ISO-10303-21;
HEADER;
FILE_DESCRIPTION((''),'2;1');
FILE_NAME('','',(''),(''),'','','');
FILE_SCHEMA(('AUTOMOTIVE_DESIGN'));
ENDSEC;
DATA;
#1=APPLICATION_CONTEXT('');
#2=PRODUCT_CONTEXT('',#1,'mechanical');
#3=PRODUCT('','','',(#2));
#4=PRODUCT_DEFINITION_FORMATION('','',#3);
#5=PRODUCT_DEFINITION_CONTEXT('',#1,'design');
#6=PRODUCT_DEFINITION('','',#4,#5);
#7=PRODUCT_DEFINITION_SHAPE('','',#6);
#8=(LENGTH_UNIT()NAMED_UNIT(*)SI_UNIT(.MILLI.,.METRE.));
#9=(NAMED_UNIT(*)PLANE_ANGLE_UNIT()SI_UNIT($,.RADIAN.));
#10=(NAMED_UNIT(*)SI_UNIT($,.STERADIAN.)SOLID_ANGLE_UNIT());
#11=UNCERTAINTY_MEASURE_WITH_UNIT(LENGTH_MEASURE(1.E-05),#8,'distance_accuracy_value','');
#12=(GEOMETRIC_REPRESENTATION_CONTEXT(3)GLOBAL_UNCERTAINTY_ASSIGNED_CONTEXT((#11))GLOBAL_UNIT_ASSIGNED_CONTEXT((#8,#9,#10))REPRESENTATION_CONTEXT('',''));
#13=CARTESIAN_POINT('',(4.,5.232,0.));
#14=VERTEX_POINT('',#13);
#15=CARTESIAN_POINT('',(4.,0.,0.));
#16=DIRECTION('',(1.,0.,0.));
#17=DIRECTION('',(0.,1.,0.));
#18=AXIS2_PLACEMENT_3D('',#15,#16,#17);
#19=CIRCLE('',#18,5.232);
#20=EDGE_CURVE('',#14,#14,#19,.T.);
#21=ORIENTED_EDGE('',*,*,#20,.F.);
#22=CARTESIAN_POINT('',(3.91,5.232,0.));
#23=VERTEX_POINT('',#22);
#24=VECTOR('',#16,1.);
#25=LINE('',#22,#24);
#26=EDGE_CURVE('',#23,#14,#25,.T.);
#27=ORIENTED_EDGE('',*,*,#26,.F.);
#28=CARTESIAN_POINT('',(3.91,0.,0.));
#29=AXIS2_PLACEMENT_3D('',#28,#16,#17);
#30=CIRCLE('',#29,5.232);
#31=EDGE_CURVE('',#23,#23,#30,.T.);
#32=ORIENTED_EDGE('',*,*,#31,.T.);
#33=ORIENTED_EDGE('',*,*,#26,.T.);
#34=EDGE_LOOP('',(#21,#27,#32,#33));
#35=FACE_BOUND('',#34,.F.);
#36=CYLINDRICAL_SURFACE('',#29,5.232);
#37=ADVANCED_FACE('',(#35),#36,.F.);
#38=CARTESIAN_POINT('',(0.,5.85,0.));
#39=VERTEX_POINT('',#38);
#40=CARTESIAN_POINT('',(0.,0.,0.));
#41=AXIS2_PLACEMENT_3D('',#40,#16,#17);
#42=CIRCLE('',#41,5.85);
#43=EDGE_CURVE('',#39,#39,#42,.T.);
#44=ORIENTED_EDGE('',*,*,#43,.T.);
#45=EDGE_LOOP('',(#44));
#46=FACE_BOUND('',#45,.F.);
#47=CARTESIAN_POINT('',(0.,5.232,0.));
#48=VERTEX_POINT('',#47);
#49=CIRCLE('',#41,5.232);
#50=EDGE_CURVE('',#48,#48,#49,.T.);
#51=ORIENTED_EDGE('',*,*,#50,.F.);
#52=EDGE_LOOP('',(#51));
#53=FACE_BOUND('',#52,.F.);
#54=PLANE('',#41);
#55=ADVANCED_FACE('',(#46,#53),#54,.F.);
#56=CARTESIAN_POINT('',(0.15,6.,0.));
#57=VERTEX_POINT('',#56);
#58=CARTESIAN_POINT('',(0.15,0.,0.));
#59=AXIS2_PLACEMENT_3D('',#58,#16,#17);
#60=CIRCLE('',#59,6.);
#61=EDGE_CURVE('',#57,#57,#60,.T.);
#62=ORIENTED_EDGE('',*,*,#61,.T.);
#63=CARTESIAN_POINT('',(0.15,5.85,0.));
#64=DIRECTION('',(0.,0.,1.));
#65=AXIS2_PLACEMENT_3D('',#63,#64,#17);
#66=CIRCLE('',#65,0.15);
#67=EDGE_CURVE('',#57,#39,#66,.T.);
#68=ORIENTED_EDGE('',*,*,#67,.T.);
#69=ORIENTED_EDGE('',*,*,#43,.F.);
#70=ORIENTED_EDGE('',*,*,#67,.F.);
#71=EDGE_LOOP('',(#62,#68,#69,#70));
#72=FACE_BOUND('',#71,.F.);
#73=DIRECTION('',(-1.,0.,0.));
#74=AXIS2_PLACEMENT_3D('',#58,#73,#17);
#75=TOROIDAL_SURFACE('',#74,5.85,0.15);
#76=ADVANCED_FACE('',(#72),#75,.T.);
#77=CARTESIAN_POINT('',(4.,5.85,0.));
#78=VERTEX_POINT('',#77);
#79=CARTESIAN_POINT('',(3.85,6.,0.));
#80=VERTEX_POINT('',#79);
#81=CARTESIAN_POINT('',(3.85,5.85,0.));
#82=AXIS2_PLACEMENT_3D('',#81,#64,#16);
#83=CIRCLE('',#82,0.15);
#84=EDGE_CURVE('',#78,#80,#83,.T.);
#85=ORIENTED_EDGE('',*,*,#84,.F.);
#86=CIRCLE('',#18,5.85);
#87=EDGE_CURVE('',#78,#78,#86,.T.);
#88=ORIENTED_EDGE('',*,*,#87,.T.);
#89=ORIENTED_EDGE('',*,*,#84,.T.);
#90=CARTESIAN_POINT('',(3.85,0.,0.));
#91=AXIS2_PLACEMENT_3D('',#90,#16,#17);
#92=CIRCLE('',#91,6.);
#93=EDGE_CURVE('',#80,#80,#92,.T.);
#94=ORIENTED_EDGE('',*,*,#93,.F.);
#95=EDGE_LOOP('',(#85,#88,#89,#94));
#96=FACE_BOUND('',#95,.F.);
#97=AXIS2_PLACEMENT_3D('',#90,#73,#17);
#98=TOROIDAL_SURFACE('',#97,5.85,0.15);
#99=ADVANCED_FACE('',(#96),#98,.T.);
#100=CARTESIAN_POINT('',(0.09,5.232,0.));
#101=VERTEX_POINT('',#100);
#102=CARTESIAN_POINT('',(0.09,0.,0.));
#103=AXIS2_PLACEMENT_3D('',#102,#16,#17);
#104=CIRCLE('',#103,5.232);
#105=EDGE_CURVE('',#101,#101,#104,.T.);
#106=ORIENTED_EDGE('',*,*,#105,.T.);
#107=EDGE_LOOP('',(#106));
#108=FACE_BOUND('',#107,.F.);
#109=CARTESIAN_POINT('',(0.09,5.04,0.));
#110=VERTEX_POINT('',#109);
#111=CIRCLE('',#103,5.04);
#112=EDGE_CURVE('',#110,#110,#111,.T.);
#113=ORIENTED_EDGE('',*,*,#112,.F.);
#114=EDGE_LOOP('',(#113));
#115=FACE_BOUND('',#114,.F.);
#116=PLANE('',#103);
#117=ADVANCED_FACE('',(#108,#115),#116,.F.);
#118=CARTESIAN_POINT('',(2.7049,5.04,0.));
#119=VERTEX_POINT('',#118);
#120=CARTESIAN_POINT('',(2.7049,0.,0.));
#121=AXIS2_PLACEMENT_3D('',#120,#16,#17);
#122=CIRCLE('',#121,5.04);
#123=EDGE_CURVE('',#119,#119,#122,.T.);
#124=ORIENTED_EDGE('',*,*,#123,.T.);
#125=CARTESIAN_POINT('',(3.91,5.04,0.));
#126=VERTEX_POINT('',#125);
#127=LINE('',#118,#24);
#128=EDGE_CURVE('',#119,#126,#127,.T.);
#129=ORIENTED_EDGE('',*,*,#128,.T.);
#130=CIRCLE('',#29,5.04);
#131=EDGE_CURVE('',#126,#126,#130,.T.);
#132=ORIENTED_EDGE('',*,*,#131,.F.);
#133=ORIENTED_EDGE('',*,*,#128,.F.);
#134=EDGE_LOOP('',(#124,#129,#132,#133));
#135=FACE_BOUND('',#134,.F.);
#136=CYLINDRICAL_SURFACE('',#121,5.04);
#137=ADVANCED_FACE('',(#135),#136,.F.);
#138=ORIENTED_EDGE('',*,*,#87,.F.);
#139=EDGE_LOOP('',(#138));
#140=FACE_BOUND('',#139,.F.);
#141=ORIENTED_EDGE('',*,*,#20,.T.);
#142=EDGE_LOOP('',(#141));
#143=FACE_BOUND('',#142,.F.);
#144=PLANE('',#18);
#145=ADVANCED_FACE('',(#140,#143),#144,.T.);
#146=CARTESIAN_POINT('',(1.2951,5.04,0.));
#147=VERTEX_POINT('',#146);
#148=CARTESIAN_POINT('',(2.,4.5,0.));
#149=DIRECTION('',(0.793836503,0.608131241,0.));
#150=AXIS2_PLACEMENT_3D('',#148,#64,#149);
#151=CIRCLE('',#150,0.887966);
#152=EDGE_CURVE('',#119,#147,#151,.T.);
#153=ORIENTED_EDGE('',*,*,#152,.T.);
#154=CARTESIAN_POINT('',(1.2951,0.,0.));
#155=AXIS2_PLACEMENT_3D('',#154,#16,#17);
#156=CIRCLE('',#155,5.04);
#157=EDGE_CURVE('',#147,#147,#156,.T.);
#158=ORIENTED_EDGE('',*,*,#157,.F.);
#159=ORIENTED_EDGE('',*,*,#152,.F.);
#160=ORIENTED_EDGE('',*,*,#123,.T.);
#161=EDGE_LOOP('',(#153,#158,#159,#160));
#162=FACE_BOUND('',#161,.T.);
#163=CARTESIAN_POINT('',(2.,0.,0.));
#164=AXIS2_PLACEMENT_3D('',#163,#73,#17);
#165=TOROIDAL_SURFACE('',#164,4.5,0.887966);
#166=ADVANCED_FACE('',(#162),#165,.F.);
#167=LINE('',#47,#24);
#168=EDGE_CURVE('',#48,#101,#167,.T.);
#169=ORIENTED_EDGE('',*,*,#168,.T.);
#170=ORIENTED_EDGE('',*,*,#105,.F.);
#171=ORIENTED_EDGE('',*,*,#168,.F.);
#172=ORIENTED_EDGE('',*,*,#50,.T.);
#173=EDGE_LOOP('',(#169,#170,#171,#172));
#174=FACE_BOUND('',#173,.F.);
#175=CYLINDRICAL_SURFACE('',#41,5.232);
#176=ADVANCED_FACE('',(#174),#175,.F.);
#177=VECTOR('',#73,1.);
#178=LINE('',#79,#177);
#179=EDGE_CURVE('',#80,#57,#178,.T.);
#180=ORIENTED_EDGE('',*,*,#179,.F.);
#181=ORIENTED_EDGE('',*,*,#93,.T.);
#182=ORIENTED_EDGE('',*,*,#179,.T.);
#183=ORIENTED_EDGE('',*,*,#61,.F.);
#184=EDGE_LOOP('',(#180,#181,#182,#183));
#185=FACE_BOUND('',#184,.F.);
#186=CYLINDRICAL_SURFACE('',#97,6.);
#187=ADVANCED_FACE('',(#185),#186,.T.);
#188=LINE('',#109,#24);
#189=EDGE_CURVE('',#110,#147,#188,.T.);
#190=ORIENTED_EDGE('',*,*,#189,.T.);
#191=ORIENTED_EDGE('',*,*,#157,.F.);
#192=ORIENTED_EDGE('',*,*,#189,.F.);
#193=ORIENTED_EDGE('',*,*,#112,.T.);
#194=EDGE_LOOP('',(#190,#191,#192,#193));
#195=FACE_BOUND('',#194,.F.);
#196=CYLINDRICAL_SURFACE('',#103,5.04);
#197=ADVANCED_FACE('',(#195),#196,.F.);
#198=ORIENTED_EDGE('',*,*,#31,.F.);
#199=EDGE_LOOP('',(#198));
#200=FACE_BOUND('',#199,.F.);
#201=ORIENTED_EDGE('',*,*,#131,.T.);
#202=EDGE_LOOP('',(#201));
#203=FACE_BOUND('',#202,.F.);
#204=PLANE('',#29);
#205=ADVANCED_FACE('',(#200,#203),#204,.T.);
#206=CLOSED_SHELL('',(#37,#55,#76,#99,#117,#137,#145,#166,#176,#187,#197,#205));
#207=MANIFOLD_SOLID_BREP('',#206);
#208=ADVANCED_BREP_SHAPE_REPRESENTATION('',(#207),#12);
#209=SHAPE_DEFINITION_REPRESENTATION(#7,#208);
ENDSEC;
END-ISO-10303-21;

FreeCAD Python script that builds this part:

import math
import FreeCAD as App
import Part
import Sketcher

V = App.Vector
Q = App.Units.Quantity

doc = App.newDocument("Part")
params = doc.addObject("Spreadsheet::Sheet", "Params")
for row, (alias, value) in enumerate([
    ("sketch1_radius", "0.15 mm"),
    ("sketch1_width", "3.7 mm"),
    ("sketch1_width2", "0.09 mm"),
    ("revolution_angle", "360 deg"),
], start=1):
    params.set(f"A{row}", alias)
    params.set(f"B{row}", "=" + value)
    params.setAlias(f"B{row}", alias)

body = doc.addObject("PartDesign::Body", "Body")

# Sketch on XY plane
sketch1 = body.newObject("Sketcher::SketchObject", "Sketch")
sketch1.AttachmentSupport = (doc.getObject("XY_Plane"), [""])
sketch1.MapMode = "FlatFace"
sketch1.addGeometry([
    Part.LineSegment(V(0, 5.85, 0), V(0, 5.23, 0)),  # 0
    Part.LineSegment(V(0, 5.23, 0), V(0.09, 5.23, 0)),  # 1
    Part.LineSegment(V(0.09, 5.23, 0), V(0.09, 5.04, 0)),  # 2
    Part.LineSegment(V(0.09, 5.04, 0), V(1.3, 5.04, 0)),  # 3
    Part.ArcOfCircle(Part.Circle(V(2, 4.5, 0), V(0, 0, 1), 0.89), math.radians(37), math.radians(143)),  # 4
    Part.LineSegment(V(2.7, 5.04, 0), V(3.91, 5.04, 0)),  # 5
    Part.LineSegment(V(3.91, 5.04, 0), V(3.91, 5.23, 0)),  # 6
    Part.LineSegment(V(3.91, 5.23, 0), V(4, 5.23, 0)),  # 7
    Part.LineSegment(V(4, 5.23, 0), V(4, 5.85, 0)),  # 8
    Part.ArcOfCircle(Part.Circle(V(3.85, 5.85, 0), V(0, 0, 1), 0.15), math.radians(0), math.radians(90)),  # 9
    Part.LineSegment(V(3.85, 6, 0), V(0.15, 6, 0)),  # 10
    Part.ArcOfCircle(Part.Circle(V(0.15, 5.85, 0), V(0, 0, 1), 0.15), math.radians(90), math.radians(180)),  # 11
], False)
sketch1.addConstraint([
    Sketcher.Constraint("Coincident", 0, 2, 1, 1),
    Sketcher.Constraint("Coincident", 1, 2, 2, 1),
    Sketcher.Constraint("Coincident", 2, 2, 3, 1),
    Sketcher.Constraint("Coincident", 3, 2, 4, 2),
    Sketcher.Constraint("Coincident", 4, 1, 5, 1),
    Sketcher.Constraint("Coincident", 5, 2, 6, 1),
    Sketcher.Constraint("Coincident", 6, 2, 7, 1),
    Sketcher.Constraint("Coincident", 7, 2, 8, 1),
    Sketcher.Constraint("Tangent", 8, 2, 9, 1),
    Sketcher.Constraint("Tangent", 9, 2, 10, 1),
    Sketcher.Constraint("Tangent", 10, 2, 11, 1),
    Sketcher.Constraint("Tangent", 11, 2, 0, 1),
    Sketcher.Constraint("Vertical", 0),
    Sketcher.Constraint("Horizontal", 1),
    Sketcher.Constraint("Vertical", 2),
    Sketcher.Constraint("Horizontal", 3),
    Sketcher.Constraint("Horizontal", 5),
    Sketcher.Constraint("Vertical", 6),
    Sketcher.Constraint("Horizontal", 7),
    Sketcher.Constraint("Vertical", 8),
    Sketcher.Constraint("Horizontal", 10),
    Sketcher.Constraint("Equal", 9, 11),
    Sketcher.Constraint("PointOnObject", 0, 2, -2),
    Sketcher.Constraint("Horizontal", 3, 2, 4, 1),
    Sketcher.Constraint("Horizontal", 1, 2, 6, 2),
    Sketcher.Constraint("Equal", 3, 5),
    Sketcher.Constraint("Equal", 1, 7),
    Sketcher.Constraint("Radius", 9, Q("0.15 mm")),
    Sketcher.Constraint("DistanceX", 10, 2, 10, 1, Q("3.7 mm")),
    Sketcher.Constraint("DistanceY", -1, 1, 9, 2, Q("6 mm")),
    Sketcher.Constraint("Radius", 4, Q("0.888 mm")),
    Sketcher.Constraint("DistanceX", 1, 1, 1, 2, Q("0.09 mm")),
    Sketcher.Constraint("DistanceY", -1, 1, 4, 3, Q("4.5 mm")),
    Sketcher.Constraint("DistanceX", 3, 1, 3, 2, Q("1.205 mm")),
    Sketcher.Constraint("DistanceY", 0, 2, 0, 1, Q("0.618 mm")),
])
sketch1.setExpression("Constraints[27]", "Params.sketch1_radius")
sketch1.setExpression("Constraints[28]", "Params.sketch1_width")
sketch1.setExpression("Constraints[31]", "Params.sketch1_width2")
revolution = body.newObject("PartDesign::Revolution", "Revolution")
revolution.Profile = sketch1
revolution.ReferenceAxis = (sketch1, ["H_Axis"])
revolution.setExpression("Angle", "Params.revolution_angle")

doc.recompute()
